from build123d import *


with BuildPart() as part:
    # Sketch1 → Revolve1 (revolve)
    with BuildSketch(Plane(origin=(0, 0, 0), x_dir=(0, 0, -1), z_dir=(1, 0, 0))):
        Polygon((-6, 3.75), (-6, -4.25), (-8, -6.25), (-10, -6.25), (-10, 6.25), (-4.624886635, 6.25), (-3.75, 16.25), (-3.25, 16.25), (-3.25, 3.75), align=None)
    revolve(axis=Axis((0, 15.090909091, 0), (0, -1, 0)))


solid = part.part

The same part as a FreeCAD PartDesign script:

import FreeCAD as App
import Part
import Sketcher
Q = App.Units.Quantity

doc = App.newDocument("Part")
body = doc.addObject("PartDesign::Body", "Body")

# Sketch on YZ plane
sketch1 = body.newObject("Sketcher::SketchObject", "Sketch")
sketch1.AttachmentSupport = (doc.getObject("YZ_Plane"), [""])
sketch1.MapMode = "FlatFace"
sketch1.addGeometry(Part.LineSegment(App.Vector(-4.2, 6, 0), App.Vector(3.8, 6, 0)), False)
sketch1.addGeometry(Part.LineSegment(App.Vector(3.8, 6, 0), App.Vector(3.8, 3.2, 0)), False)
sketch1.addGeometry(Part.LineSegment(App.Vector(3.8, 3.2, 0), App.Vector(16.2, 3.2, 0)), False)
sketch1.addGeometry(Part.LineSegment(App.Vector(16.2, 3.2, 0), App.Vector(16.2, 3.8, 0)), False)
sketch1.addGeometry(Part.LineSegment(App.Vector(16.2, 3.8, 0), App.Vector(6.2, 4.6, 0)), False)
sketch1.addGeometry(Part.LineSegment(App.Vector(6.2, 4.6, 0), App.Vector(6.2, 10, 0)), False)
sketch1.addGeometry(Part.LineSegment(App.Vector(6.2, 10, 0), App.Vector(-6.2, 10, 0)), False)
sketch1.addGeometry(Part.LineSegment(App.Vector(-6.2, 10, 0), App.Vector(-6.2, 8, 0)), False)
sketch1.addGeometry(Part.LineSegment(App.Vector(-6.2, 8, 0), App.Vector(-4.2, 6, 0)), False)
sketch1.addConstraint(Sketcher.Constraint("Coincident", 0, 2, 1, 1))
sketch1.addConstraint(Sketcher.Constraint("Coincident", 1, 2, 2, 1))
sketch1.addConstraint(Sketcher.Constraint("Coincident", 2, 2, 3, 1))
sketch1.addConstraint(Sketcher.Constraint("Coincident", 3, 2, 4, 1))
sketch1.addConstraint(Sketcher.Constraint("Coincident", 4, 2, 5, 1))
sketch1.addConstraint(Sketcher.Constraint("Coincident", 5, 2, 6, 1))
sketch1.addConstraint(Sketcher.Constraint("Coincident", 6, 2, 7, 1))
sketch1.addConstraint(Sketcher.Constraint("Coincident", 7, 2, 8, 1))
sketch1.addConstraint(Sketcher.Constraint("Coincident", 8, 2, 0, 1))
sketch1.addConstraint(Sketcher.Constraint("Horizontal", 0))
sketch1.addConstraint(Sketcher.Constraint("Vertical", 1))
sketch1.addConstraint(Sketcher.Constraint("Horizontal", 2))
sketch1.addConstraint(Sketcher.Constraint("Vertical", 3))
sketch1.addConstraint(Sketcher.Constraint("Vertical", 5))
sketch1.addConstraint(Sketcher.Constraint("Horizontal", 6))
sketch1.addConstraint(Sketcher.Constraint("Vertical", 7))
sketch1.addConstraint(Sketcher.Constraint("Equal", 2, 6))
sketch1.addConstraint(Sketcher.Constraint("DistanceX", 0, 1, 0, 2, 8.0))
sketch1.addConstraint(Sketcher.Constraint("DistanceY", 7, 2, 7, 1, 2.0))
sketch1.addConstraint(Sketcher.Constraint("Angle", 4, Q("175 deg")))
sketch1.addConstraint(Sketcher.Constraint("Angle", 8, Q("-45 deg")))
sketch1.addConstraint(Sketcher.Constraint("DistanceX", 2, 1, 2, 2, 12.5))
sketch1.addConstraint(Sketcher.Constraint("DistanceY", 3, 1, 3, 2, 0.5))
sketch1.addConstraint(Sketcher.Constraint("DistanceY", -1, 1, 0, 2, 6.0))
sketch1.addConstraint(Sketcher.Constraint("DistanceY", -1, 1, 5, 2, 10.0))
sketch1.addConstraint(Sketcher.Constraint("DistanceY", 1, 2, 1, 1, 2.75))
sketch1.addConstraint(Sketcher.Constraint("DistanceX", -1, 1, 0, 2, 3.75))
revolution = body.newObject("PartDesign::Revolution", "Revolution")
revolution.Profile = sketch1
revolution.ReferenceAxis = (sketch1, ["H_Axis"])
revolution.Angle = 360

doc.recompute()
